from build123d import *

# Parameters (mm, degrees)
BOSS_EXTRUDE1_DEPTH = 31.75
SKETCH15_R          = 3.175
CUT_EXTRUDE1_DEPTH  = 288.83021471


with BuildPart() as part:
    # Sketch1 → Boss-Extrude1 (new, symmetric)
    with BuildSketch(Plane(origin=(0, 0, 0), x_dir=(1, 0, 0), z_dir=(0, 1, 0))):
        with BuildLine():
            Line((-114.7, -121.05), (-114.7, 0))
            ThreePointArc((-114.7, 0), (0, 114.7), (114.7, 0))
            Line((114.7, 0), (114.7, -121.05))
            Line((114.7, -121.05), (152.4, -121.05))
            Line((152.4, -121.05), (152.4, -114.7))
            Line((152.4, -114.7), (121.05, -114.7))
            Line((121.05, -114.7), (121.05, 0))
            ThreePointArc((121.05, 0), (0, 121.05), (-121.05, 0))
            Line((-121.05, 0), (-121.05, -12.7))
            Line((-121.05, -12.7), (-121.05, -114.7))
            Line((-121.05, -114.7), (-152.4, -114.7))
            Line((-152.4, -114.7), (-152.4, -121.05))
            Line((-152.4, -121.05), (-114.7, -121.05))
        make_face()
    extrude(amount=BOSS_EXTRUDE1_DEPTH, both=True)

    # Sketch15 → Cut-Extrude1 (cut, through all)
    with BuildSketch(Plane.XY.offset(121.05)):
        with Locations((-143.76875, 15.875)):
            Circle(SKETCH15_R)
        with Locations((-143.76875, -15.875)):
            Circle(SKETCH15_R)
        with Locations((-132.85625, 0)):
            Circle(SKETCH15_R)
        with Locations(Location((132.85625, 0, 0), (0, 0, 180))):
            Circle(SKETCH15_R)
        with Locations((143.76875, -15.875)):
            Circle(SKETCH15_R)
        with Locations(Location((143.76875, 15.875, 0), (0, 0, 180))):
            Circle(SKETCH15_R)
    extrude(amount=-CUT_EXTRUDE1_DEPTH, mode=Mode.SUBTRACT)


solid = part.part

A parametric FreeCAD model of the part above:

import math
import FreeCAD as App
import Part
import Sketcher

V = App.Vector
Q = App.Units.Quantity

doc = App.newDocument("Part")
body = doc.addObject("PartDesign::Body", "Body")

# Sketch on XZ plane
sketch1 = body.newObject("Sketcher::SketchObject", "Sketch")
sketch1.AttachmentSupport = (doc.getObject("XZ_Plane"), [""])
sketch1.MapMode = "FlatFace"
sketch1.addGeometry(Part.LineSegment(V(-115, 121, 0), V(-115, 0, 0)), False)
sketch1.addGeometry(Part.ArcOfCircle(Part.Circle(V(0, 0, 0), V(0, 0, 1), 115), math.radians(180), math.radians(360)), False)
sketch1.addGeometry(Part.LineSegment(V(115, 0, 0), V(115, 121, 0)), False)
sketch1.addGeometry(Part.LineSegment(V(115, 121, 0), V(152, 121, 0)), False)
sketch1.addGeometry(Part.LineSegment(V(152, 121, 0), V(152, 115, 0)), False)
sketch1.addGeometry(Part.LineSegment(V(152, 115, 0), V(121, 115, 0)), False)
sketch1.addGeometry(Part.LineSegment(V(121, 115, 0), V(121, 0, 0)), False)
sketch1.addGeometry(Part.ArcOfCircle(Part.Circle(V(0, 0, 0), V(0, 0, 1), 121), math.radians(180), math.radians(360)), False)
sketch1.addGeometry(Part.LineSegment(V(-121, 0, 0), V(-121, 115, 0)), False)
sketch1.addGeometry(Part.LineSegment(V(-121, 115, 0), V(-152, 115, 0)), False)
sketch1.addGeometry(Part.LineSegment(V(-152, 115, 0), V(-152, 121, 0)), False)
sketch1.addGeometry(Part.LineSegment(V(-152, 121, 0), V(-115, 121, 0)), False)
sketch1.addConstraint(Sketcher.Constraint("Tangent", 0, 2, 1, 1))
sketch1.addConstraint(Sketcher.Constraint("Tangent", 1, 2, 2, 1))
sketch1.addConstraint(Sketcher.Constraint("Coincident", 2, 2, 3, 1))
sketch1.addConstraint(Sketcher.Constraint("Coincident", 3, 2, 4, 1))
sketch1.addConstraint(Sketcher.Constraint("Coincident", 4, 2, 5, 1))
sketch1.addConstraint(Sketcher.Constraint("Coincident", 5, 2, 6, 1))
sketch1.addConstraint(Sketcher.Constraint("Tangent", 6, 2, 7, 2))
sketch1.addConstraint(Sketcher.Constraint("Tangent", 7, 1, 8, 1))
sketch1.addConstraint(Sketcher.Constraint("Coincident", 8, 2, 9, 1))
sketch1.addConstraint(Sketcher.Constraint("Coincident", 9, 2, 10, 1))
sketch1.addConstraint(Sketcher.Constraint("Coincident", 10, 2, 11, 1))
sketch1.addConstraint(Sketcher.Constraint("Coincident", 11, 2, 0, 1))
sketch1.addConstraint(Sketcher.Constraint("Vertical", 0))
sketch1.addConstraint(Sketcher.Constraint("Vertical", 2))
sketch1.addConstraint(Sketcher.Constraint("Horizontal", 3))
sketch1.addConstraint(Sketcher.Constraint("Vertical", 4))
sketch1.addConstraint(Sketcher.Constraint("Horizontal", 5))
sketch1.addConstraint(Sketcher.Constraint("Vertical", 6))
sketch1.addConstraint(Sketcher.Constraint("Vertical", 8))
sketch1.addConstraint(Sketcher.Constraint("Horizontal", 9))
sketch1.addConstraint(Sketcher.Constraint("Vertical", 10))
sketch1.addConstraint(Sketcher.Constraint("Horizontal", 11))
sketch1.addConstraint(Sketcher.Constraint("Coincident", 1, 3, -1, 1))
sketch1.addConstraint(Sketcher.Constraint("Coincident", 7, 3, -1, 1))
sketch1.addConstraint(Sketcher.Constraint("Symmetric", 4, 2, 9, 2, -2))
sketch1.addConstraint(Sketcher.Constraint("Horizontal", 3, 2, 10, 2))
sketch1.addConstraint(Sketcher.Constraint("Radius", 1, Q("114.7 mm")))
sketch1.addConstraint(Sketcher.Constraint("Radius", 7, Q("121.05 mm")))
sketch1.addConstraint(Sketcher.Constraint("DistanceX", 3, 1, 3, 2, Q("37.7 mm")))
sketch1.addConstraint(Sketcher.Constraint("DistanceY", 6, 2, 6, 1, Q("114.7 mm")))
sketch1.addConstraint(Sketcher.Constraint("DistanceY", 0, 2, 0, 1, Q("121.05 mm")))
pad1 = body.newObject("PartDesign::Pad", "Pad")
pad1.Profile = sketch1
pad1.Length = 63.5
pad1.Midplane = True

# Sketch on XY plane
sketch2 = body.newObject("Sketcher::SketchObject", "Sketch001")
sketch2.AttachmentSupport = (doc.getObject("XY_Plane"), [""])
sketch2.MapMode = "FlatFace"
sketch2.AttachmentOffset = App.Placement(V(0, 0, 121.05), App.Rotation())
sketch2.addGeometry(Part.Circle(V(-143.8, 15.9, 0), V(0, 0, 1), 3.2), False)
sketch2.addGeometry(Part.Circle(V(-143.8, -15.9, 0), V(0, 0, 1), 3.2), False)
sketch2.addGeometry(Part.Circle(V(-132.9, 0, 0), V(0, 0, 1), 3.2), False)
sketch2.addGeometry(Part.Circle(V(132.9, 0, 0), V(0, 0, 1), 3.2), False)
sketch2.addGeometry(Part.Circle(V(143.8, -15.9, 0), V(0, 0, 1), 3.2), False)
sketch2.addGeometry(Part.Circle(V(143.8, 15.9, 0), V(0, 0, 1), 3.2), False)
sketch2.addConstraint(Sketcher.Constraint("Equal", 0, 1))
sketch2.addConstraint(Sketcher.Constraint("Equal", 1, 2))
sketch2.addConstraint(Sketcher.Constraint("Equal", 2, 3))
sketch2.addConstraint(Sketcher.Constraint("Equal", 3, 4))
sketch2.addConstraint(Sketcher.Constraint("Equal", 4, 5))
sketch2.addConstraint(Sketcher.Constraint("Symmetric", 2, 3, 3, 3, -1, 1))
sketch2.addConstraint(Sketcher.Constraint("Symmetric", 0, 3, 4, 3, -1, 1))
sketch2.addConstraint(Sketcher.Constraint("Symmetric", 1, 3, 5, 3, -1, 1))
sketch2.addConstraint(Sketcher.Constraint("Symmetric", 1, 3, 4, 3, -2))
sketch2.addConstraint(Sketcher.Constraint("PointOnObject", 2, 3, -1))
sketch2.addConstraint(Sketcher.Constraint("Diameter", 0, Q("6.35 mm")))
sketch2.addConstraint(Sketcher.Constraint("DistanceY", 1, 3, 0, 3, Q("31.75 mm")))
sketch2.addConstraint(Sketcher.Constraint("DistanceX", 0, 3, 3, 3, Q("276.625 mm")))
sketch2.addConstraint(Sketcher.Constraint("DistanceX", 0, 3, 2, 3, Q("10.9125 mm")))
pocket1 = body.newObject("PartDesign::Pocket", "Pocket")
pocket1.Profile = sketch2
pocket1.Type = "ThroughAll"

doc.recompute()
